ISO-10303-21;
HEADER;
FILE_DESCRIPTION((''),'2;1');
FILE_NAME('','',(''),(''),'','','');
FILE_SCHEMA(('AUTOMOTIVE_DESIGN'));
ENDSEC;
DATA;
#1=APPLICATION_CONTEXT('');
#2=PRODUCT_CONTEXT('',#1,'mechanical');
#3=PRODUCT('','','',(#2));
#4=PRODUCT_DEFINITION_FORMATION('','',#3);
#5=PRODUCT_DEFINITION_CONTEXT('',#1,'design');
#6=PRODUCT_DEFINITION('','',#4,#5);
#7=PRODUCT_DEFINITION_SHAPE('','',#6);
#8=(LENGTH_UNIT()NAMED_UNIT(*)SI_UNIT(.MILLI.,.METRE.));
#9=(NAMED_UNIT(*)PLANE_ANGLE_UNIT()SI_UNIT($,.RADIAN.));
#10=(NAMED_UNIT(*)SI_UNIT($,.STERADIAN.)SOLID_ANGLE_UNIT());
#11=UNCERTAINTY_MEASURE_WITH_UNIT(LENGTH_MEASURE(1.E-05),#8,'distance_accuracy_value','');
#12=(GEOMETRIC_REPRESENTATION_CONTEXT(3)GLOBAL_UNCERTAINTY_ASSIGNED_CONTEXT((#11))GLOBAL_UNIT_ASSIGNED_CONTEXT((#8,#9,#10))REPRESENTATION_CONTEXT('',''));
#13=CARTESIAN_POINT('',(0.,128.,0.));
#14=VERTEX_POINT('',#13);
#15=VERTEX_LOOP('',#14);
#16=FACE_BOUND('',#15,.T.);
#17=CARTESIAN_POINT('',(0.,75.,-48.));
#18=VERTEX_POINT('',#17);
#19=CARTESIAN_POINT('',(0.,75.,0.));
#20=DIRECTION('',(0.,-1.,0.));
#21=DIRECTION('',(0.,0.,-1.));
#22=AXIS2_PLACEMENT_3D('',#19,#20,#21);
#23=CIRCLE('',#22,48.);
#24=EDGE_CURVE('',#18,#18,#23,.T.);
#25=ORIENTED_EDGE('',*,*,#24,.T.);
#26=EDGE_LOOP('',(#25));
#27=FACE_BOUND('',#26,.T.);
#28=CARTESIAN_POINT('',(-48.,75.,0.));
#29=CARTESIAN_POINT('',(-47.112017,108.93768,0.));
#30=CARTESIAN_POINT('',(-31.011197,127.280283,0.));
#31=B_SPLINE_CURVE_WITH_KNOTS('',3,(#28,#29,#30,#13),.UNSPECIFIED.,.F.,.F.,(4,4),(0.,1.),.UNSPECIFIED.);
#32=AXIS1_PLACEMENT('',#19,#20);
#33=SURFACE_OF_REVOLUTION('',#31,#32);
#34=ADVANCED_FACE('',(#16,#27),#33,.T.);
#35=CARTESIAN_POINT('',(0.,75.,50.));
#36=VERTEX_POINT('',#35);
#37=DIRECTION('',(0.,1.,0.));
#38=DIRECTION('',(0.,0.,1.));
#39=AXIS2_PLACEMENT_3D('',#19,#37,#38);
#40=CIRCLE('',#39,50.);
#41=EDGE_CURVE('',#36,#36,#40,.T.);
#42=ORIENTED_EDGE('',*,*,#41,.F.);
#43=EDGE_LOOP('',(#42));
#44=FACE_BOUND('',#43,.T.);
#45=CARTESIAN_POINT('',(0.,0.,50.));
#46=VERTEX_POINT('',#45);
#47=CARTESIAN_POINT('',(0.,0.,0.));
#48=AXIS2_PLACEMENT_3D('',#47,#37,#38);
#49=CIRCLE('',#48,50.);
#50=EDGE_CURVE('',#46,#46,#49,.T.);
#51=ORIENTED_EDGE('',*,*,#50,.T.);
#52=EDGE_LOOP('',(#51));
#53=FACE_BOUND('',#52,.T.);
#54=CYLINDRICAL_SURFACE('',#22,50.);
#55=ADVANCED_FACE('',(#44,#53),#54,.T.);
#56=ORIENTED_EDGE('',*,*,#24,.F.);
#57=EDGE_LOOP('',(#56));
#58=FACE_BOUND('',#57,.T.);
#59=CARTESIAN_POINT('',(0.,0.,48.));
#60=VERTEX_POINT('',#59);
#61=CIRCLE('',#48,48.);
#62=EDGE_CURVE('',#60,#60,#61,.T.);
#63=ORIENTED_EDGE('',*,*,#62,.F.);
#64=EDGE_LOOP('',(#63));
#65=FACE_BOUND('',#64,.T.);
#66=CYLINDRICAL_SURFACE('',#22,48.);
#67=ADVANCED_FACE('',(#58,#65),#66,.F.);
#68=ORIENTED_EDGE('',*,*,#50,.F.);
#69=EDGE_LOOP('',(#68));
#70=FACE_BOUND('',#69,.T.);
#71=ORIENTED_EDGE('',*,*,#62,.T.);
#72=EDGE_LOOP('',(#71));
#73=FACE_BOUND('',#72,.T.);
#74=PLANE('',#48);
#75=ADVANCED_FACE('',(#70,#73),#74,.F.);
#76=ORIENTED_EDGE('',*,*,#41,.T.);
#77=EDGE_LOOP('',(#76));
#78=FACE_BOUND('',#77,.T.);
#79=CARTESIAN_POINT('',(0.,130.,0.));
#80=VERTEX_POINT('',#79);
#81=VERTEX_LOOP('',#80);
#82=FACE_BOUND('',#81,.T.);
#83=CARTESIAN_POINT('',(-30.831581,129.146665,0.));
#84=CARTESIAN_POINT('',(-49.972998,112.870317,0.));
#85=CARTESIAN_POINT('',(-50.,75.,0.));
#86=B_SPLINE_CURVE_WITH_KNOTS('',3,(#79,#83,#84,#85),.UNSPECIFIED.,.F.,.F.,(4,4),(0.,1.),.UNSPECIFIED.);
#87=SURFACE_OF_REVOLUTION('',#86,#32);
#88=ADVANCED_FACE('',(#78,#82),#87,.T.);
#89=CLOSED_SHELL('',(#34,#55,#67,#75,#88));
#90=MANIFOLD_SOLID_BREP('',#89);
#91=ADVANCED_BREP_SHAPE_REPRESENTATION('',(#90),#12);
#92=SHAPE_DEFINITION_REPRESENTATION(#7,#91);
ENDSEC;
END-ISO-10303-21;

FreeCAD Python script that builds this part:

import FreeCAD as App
import Part
import Sketcher
Q = App.Units.Quantity

doc = App.newDocument("Part")
body = doc.addObject("PartDesign::Body", "Body")

# Sketch on XZ plane
sketch1 = body.newObject("Sketcher::SketchObject", "Sketch")
sketch1.AttachmentSupport = (doc.getObject("XZ_Plane"), [""])
sketch1.MapMode = "FlatFace"
sketch1.addGeometry([
    Part.Circle(App.Vector(0, 0, 0), App.Vector(0, 0, 1), 50),
    Part.Circle(App.Vector(0, 0, 0), App.Vector(0, 0, 1), 48),
], False)
sketch1.addConstraint([
    Sketcher.Constraint("Coincident", 0, 3, -1, 1),
    Sketcher.Constraint("Coincident", 1, 3, -1, 1),
    Sketcher.Constraint("Diameter", 0, Q("100 mm")),
    Sketcher.Constraint("Diameter", 1, Q("96 mm")),
])
pad1 = body.newObject("PartDesign::Pad", "Pad")
pad1.Profile = sketch1
pad1.Length = 75
pad1.Reversed = True

# Sketch on XY plane
sketch2 = body.newObject("Sketcher::SketchObject", "Sketch001")
sketch2.AttachmentSupport = (doc.getObject("XY_Plane"), [""])
sketch2.MapMode = "FlatFace"
sketch2.addGeometry([
    Part.LineSegment(App.Vector(-50, 75, 0), App.Vector(-48, 75, 0)),
    Part.BSplineCurve([App.Vector(-48, 75, 0), App.Vector(-47.112017, 108.93768, 0), App.Vector(-31.011197, 127.280283, 0), App.Vector(0, 128, 0)], [4, 4], [0, 1], False, 3, [1, 1, 1, 1], False),
    Part.LineSegment(App.Vector(0, 128, 0), App.Vector(0, 130, 0)),
    Part.BSplineCurve([App.Vector(-50, 75, 0), App.Vector(-49.972998, 112.870317, 0), App.Vector(-30.831581, 129.146665, 0), App.Vector(0, 130, 0)], [4, 4], [0, 1], False, 3, [1, 1, 1, 1], False),
], False)
sketch2.addConstraint([
    Sketcher.Constraint("Block", 1),
    Sketcher.Constraint("Block", 3),
    Sketcher.Constraint("Coincident", 0, 2, 1, 1),
    Sketcher.Constraint("Coincident", 1, 2, 2, 1),
    Sketcher.Constraint("Coincident", 2, 2, 3, 2),
    Sketcher.Constraint("Coincident", 3, 1, 0, 1),
])
revolution = body.newObject("PartDesign::Revolution", "Revolution")
revolution.Profile = sketch2
revolution.ReferenceAxis = (sketch2, ["V_Axis"])
revolution.Angle = 360

doc.recompute()
